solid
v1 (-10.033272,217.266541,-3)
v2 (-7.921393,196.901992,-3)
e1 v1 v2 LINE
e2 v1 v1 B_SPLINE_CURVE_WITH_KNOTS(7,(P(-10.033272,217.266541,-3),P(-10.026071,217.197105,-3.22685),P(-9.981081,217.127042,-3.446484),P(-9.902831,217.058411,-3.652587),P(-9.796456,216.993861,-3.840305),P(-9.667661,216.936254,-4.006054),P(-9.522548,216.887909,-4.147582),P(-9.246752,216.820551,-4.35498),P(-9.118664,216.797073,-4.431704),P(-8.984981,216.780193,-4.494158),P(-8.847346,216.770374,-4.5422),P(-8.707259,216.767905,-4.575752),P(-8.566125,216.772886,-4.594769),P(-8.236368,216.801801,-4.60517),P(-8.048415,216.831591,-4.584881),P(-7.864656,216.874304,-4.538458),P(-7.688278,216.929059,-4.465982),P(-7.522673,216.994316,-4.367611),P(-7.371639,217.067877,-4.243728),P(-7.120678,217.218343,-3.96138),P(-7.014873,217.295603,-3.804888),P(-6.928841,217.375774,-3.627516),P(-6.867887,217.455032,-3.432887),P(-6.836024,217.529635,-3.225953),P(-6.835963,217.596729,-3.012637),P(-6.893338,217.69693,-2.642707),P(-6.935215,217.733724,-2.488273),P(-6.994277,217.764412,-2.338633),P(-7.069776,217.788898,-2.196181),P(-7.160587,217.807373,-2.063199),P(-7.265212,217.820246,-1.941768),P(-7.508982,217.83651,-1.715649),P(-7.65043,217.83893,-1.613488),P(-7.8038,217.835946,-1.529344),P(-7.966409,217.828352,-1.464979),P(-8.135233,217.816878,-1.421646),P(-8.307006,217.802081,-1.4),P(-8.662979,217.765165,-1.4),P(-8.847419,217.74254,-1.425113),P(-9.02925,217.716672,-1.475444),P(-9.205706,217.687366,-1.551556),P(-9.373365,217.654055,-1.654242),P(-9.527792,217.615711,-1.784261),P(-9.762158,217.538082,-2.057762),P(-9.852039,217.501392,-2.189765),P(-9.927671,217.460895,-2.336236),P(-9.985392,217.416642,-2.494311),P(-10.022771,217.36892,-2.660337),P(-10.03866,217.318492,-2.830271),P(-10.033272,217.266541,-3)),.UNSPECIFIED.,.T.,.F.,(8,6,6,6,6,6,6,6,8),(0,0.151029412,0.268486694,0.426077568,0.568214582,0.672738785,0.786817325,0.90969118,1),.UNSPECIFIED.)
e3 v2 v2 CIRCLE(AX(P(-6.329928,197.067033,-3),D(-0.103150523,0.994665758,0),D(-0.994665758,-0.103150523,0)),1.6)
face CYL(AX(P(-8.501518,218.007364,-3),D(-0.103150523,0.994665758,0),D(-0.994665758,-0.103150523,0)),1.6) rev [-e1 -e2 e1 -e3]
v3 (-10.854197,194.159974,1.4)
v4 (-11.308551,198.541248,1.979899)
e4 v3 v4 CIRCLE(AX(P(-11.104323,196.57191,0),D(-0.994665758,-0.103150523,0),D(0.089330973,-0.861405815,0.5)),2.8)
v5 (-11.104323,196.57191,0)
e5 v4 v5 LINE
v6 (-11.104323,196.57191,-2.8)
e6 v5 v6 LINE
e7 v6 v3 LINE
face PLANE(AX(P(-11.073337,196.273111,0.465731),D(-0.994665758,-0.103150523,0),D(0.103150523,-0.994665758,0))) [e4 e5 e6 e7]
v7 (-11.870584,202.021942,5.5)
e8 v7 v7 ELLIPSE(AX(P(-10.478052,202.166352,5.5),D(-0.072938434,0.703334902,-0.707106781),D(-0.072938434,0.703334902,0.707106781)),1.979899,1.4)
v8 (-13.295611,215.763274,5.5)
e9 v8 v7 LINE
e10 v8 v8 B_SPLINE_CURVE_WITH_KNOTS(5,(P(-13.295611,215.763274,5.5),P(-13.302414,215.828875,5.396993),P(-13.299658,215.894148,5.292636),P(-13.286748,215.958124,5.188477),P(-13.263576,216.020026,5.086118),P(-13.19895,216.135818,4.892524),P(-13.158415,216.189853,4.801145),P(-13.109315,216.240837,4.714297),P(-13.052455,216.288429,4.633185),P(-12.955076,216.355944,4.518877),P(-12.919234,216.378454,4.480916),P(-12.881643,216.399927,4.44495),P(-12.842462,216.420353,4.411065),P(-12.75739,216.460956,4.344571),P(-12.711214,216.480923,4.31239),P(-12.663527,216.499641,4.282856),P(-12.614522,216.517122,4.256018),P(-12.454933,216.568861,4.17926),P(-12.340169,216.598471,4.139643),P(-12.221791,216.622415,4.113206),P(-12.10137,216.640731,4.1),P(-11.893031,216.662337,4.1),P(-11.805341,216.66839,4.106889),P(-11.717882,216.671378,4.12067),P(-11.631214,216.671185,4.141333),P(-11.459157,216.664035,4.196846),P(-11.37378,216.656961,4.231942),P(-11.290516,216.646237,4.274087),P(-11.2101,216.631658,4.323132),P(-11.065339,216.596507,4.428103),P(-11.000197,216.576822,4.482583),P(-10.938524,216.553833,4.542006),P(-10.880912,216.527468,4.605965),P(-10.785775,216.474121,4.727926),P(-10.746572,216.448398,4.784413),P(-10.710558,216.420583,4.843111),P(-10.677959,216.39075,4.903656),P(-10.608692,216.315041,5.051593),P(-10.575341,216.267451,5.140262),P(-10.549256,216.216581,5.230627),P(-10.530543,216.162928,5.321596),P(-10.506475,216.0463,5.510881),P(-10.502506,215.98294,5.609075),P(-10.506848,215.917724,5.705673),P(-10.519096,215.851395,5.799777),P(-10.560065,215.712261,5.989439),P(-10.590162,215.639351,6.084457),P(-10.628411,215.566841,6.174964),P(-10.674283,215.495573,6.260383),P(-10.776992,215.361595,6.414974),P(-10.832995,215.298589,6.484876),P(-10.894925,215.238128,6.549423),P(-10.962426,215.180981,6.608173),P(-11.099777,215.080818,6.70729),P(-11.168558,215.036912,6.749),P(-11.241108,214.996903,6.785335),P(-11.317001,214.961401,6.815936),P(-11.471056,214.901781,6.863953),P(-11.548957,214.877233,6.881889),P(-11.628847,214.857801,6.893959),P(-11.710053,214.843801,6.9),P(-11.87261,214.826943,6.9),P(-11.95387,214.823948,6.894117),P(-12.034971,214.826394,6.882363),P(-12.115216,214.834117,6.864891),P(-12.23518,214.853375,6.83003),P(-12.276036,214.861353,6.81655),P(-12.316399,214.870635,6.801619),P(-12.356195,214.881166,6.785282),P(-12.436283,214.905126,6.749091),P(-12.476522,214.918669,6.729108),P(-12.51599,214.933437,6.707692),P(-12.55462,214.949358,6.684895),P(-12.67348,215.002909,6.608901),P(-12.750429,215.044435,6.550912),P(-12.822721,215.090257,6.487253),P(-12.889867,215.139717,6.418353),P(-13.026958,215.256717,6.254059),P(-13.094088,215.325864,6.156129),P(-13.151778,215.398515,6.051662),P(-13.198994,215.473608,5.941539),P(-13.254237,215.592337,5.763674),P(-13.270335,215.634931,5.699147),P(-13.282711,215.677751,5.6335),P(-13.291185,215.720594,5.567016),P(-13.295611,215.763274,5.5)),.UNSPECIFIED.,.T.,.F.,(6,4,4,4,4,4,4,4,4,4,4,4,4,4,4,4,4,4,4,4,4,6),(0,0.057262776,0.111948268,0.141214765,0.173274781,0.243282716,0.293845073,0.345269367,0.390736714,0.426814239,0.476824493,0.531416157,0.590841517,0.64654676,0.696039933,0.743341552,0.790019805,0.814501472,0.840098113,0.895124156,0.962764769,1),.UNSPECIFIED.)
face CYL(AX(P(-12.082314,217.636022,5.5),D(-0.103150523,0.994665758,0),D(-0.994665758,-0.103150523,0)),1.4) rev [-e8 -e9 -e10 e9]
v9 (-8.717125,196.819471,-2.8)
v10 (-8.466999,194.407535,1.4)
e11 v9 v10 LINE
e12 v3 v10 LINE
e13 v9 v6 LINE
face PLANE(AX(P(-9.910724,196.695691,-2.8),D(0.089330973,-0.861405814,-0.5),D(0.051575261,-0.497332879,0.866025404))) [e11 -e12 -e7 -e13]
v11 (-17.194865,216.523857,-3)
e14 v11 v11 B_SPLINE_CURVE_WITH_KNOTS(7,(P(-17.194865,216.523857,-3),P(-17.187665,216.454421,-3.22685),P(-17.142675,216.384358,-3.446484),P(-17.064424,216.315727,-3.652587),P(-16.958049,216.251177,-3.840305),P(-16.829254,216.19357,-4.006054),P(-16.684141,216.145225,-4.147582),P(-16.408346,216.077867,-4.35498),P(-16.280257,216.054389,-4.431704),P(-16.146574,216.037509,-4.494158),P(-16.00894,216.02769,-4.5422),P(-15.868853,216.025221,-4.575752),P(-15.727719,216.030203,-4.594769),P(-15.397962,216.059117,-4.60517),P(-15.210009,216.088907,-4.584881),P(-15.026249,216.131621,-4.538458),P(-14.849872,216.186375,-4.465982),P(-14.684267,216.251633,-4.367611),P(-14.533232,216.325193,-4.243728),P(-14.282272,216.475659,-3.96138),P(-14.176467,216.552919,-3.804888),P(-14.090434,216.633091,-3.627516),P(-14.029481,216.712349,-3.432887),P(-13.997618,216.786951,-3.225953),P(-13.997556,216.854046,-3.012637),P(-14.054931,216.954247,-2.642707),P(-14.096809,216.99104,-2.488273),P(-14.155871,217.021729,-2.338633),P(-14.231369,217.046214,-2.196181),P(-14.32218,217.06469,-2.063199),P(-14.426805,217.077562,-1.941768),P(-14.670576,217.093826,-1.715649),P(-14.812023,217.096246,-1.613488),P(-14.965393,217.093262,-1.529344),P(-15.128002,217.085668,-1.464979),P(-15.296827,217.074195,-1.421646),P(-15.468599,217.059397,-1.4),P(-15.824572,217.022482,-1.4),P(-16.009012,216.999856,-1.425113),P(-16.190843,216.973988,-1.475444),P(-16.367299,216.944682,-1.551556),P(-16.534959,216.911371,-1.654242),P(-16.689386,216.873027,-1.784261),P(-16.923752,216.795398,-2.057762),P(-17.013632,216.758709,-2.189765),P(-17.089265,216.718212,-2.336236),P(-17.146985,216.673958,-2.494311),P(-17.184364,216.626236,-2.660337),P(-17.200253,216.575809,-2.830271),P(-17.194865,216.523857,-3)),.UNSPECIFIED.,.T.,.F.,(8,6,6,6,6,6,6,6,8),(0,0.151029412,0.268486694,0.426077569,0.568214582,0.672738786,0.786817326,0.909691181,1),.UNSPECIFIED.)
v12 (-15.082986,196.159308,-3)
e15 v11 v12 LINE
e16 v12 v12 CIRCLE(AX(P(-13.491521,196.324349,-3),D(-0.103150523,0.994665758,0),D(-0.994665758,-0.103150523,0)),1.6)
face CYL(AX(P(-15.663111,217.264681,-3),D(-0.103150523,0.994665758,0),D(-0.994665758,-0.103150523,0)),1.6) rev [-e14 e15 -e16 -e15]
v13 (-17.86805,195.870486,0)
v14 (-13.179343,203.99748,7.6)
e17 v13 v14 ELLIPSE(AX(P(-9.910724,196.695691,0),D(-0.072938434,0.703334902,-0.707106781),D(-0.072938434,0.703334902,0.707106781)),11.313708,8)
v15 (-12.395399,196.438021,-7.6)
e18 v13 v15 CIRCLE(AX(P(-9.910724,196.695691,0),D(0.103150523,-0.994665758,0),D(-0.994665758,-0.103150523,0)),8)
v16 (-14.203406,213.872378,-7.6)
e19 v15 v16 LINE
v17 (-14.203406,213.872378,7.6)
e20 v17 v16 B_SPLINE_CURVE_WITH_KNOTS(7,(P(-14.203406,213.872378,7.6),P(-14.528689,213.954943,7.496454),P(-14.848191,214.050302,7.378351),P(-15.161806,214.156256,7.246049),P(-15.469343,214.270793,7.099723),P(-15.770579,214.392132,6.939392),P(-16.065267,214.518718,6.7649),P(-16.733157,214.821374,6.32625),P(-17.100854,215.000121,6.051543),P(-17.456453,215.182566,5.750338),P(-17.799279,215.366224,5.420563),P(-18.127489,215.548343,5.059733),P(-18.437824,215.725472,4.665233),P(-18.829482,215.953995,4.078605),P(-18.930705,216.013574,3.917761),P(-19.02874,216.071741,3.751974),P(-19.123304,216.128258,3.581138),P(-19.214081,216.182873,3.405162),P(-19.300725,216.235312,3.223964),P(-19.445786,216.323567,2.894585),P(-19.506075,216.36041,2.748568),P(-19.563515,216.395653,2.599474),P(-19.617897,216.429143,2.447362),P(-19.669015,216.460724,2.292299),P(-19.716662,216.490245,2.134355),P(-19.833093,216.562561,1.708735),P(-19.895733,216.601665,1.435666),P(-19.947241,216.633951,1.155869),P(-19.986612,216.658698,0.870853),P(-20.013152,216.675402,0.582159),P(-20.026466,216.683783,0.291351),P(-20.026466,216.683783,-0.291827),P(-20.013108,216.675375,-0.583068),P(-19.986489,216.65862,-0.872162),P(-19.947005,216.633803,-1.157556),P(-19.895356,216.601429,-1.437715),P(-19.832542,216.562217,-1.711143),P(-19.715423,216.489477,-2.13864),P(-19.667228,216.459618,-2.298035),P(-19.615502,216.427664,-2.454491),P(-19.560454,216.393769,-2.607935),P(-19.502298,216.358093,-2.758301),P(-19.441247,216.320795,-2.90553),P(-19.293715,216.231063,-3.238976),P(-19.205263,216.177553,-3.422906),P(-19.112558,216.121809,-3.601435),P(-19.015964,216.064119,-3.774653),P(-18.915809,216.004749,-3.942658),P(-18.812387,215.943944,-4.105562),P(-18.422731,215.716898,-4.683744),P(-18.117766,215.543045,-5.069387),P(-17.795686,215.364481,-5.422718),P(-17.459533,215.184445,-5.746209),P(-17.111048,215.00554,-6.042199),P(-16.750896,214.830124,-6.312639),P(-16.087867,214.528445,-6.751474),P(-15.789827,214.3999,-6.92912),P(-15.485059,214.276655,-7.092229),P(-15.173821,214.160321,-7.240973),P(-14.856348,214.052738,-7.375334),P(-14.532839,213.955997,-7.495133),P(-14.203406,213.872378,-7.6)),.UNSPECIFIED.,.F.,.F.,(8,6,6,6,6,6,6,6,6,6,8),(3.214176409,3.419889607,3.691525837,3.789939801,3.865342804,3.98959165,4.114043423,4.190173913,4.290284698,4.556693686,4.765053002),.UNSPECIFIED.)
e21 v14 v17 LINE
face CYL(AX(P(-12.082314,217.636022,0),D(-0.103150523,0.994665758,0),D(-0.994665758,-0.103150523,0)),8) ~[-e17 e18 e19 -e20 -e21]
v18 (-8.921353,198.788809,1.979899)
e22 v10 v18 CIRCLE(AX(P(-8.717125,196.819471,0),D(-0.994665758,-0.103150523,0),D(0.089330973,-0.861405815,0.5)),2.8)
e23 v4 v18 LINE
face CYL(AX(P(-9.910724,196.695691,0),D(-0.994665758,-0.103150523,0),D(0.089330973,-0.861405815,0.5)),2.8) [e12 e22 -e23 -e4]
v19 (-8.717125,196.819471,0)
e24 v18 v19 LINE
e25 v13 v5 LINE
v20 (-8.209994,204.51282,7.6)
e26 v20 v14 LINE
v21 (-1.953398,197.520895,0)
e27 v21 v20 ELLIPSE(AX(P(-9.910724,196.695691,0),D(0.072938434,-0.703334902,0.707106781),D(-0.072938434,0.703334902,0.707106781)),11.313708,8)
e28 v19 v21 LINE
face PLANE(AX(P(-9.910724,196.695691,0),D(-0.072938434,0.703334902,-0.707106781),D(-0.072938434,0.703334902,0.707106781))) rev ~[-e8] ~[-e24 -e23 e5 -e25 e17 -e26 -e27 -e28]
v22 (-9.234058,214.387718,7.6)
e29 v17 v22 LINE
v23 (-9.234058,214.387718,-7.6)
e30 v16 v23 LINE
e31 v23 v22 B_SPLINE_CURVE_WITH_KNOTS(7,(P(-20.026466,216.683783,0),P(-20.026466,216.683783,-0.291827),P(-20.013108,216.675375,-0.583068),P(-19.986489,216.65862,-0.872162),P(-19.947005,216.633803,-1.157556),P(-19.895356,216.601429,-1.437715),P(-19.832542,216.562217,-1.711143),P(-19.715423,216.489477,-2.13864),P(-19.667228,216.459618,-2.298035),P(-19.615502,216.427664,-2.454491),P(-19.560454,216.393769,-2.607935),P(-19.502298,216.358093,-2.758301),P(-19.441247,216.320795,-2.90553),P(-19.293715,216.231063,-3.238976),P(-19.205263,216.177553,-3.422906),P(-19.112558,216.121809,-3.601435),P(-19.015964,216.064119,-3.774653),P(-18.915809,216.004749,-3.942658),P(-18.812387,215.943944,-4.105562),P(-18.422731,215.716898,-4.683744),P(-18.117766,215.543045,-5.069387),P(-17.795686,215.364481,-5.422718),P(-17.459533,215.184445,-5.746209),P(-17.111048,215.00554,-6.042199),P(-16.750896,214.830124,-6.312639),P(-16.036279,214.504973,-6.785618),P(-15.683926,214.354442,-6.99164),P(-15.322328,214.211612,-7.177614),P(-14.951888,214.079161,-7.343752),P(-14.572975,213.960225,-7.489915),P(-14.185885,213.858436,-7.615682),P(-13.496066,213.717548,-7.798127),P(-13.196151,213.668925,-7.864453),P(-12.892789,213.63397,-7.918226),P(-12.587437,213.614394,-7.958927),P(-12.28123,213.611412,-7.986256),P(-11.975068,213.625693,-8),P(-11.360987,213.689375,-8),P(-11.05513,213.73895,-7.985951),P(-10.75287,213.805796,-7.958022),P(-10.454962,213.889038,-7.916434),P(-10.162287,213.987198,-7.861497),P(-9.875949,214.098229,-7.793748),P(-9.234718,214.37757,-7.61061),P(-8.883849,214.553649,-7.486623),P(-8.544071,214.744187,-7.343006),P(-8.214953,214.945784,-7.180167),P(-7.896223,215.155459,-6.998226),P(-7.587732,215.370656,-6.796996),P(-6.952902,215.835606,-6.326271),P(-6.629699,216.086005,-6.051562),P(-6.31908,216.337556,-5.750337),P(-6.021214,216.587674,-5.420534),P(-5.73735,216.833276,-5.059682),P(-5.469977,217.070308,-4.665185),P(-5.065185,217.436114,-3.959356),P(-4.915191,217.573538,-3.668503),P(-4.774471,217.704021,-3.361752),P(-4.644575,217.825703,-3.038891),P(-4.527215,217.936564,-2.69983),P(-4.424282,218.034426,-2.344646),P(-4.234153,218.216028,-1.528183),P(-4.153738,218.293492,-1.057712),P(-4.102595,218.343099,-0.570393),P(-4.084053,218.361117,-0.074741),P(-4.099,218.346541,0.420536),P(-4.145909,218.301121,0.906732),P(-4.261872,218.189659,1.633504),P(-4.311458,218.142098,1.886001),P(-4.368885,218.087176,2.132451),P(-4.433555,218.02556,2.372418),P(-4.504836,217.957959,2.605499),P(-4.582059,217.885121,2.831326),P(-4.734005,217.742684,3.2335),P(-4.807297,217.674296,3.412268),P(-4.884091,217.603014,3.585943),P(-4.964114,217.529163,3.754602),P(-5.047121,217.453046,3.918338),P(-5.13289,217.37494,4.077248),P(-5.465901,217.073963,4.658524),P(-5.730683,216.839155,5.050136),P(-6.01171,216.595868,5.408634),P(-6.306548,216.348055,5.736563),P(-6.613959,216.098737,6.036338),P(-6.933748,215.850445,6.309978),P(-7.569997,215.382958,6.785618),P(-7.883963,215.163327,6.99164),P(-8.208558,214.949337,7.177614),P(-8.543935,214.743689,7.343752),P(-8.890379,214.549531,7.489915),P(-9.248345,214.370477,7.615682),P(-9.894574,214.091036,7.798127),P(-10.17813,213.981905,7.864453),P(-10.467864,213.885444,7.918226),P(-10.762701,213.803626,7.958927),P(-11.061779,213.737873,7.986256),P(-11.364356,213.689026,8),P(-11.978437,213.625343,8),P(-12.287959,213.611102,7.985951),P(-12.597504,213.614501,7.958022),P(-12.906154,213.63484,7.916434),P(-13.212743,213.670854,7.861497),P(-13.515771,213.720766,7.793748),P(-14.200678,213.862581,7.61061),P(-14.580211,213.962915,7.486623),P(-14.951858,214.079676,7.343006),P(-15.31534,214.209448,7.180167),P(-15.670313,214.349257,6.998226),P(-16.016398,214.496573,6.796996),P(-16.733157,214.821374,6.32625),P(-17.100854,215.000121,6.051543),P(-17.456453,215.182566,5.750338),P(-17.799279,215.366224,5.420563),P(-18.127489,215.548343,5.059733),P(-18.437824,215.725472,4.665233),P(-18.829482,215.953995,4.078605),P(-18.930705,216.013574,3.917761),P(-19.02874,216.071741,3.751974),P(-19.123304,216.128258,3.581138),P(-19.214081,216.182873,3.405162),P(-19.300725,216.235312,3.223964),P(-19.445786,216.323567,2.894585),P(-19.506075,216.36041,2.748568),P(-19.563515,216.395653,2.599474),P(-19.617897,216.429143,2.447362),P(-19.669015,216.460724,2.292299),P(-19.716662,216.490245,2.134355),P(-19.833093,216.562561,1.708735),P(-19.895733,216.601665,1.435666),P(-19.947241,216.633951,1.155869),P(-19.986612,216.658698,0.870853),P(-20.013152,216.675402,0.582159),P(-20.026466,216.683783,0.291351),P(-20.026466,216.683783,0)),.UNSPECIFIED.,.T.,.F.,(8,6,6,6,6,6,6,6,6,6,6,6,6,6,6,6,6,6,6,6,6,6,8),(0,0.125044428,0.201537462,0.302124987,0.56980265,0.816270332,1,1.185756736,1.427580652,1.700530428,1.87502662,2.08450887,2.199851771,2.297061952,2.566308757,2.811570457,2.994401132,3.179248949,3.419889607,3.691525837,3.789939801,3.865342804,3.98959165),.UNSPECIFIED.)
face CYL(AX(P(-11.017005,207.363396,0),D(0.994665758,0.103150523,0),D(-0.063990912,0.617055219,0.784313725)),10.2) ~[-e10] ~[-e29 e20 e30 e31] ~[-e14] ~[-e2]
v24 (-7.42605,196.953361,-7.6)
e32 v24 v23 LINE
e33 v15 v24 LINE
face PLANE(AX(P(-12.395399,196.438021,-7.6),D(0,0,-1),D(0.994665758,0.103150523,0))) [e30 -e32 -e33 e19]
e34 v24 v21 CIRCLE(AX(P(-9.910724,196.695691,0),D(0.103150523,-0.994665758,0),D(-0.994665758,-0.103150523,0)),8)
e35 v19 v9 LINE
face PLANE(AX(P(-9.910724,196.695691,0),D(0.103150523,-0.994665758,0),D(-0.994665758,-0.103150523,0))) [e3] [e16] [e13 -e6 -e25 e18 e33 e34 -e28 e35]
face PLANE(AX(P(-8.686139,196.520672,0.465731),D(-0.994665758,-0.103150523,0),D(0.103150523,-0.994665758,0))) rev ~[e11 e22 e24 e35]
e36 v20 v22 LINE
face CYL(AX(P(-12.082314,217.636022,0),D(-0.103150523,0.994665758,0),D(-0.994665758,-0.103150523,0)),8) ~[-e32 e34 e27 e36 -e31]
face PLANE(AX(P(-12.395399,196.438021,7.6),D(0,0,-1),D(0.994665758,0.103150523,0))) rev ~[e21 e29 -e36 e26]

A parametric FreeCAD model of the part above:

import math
import FreeCAD as App
import Part
import Sketcher
Q = App.Units.Quantity


def add_polygon(sketch, points):
    """Adds a closed chain of lines whose ends are joined by coincident constraints."""
    first, n = sketch.GeometryCount, len(points)
    for a, b in zip(points, points[1:] + points[:1]):
        sketch.addGeometry(Part.LineSegment(App.Vector(*a, 0), App.Vector(*b, 0)), False)
    for i in range(n):
        sketch.addConstraint(Sketcher.Constraint("Coincident", first + i, 2, first + (i + 1) % n, 1))

doc = App.newDocument("Part")
body = doc.addObject("PartDesign::Body", "Body")

# Sketch on an angled plane
sketch1 = body.newObject("Sketcher::SketchObject", "Sketch")
sketch1.Placement = App.Placement(App.Vector(-12.082314, 217.636022, 0), App.Rotation(App.Vector(-0.994665758, -0.103150523, 0), App.Vector(0, 0, -1.000000001), App.Vector(0.103150523, -0.994665758, 0), "ZXY"))
sketch1.addGeometry(Part.Circle(App.Vector(0, 0, 0), App.Vector(0, 0, 1), 8), False)
sketch1.addConstraint([
    Sketcher.Constraint("Coincident", 0, 3, -1, 1),
    Sketcher.Constraint("Diameter", 0, 16.0),
])
pad1 = body.newObject("PartDesign::Pad", "Pad")
pad1.Profile = sketch1
pad1.Length = 21.052632

# Sketch on an angled plane
sketch2 = body.newObject("Sketcher::SketchObject", "Sketch001")
sketch2.Placement = App.Placement(App.Vector(10.375762, 1.076005, 0), App.Rotation(App.Vector(0.103150523, -0.994665758, 0), App.Vector(0, 0, 1.000000001), App.Vector(-0.994665758, -0.103150523, 0), "ZXY"))
sketch2.addGeometry([
    Part.LineSegment(App.Vector(-213.721396, 8, 0), App.Vector(-217.721396, 8, 0)),
    Part.LineSegment(App.Vector(-217.721396, 8, 0), App.Vector(-217.721396, -8, 0)),
    Part.LineSegment(App.Vector(-217.721396, -8, 0), App.Vector(-213.721396, -8, 0)),
    Part.ArcOfCircle(Part.Circle(App.Vector(-207.393679, 0, 0), App.Vector(0, 0, 1), 10.2), math.radians(128.342749), math.radians(231.657251)),
], False)
sketch2.addConstraint([
    Sketcher.Constraint("Coincident", 0, 2, 1, 1),
    Sketcher.Constraint("Coincident", 1, 2, 2, 1),
    Sketcher.Constraint("Coincident", 2, 2, 3, 2),
    Sketcher.Constraint("Coincident", 3, 1, 0, 1),
    Sketcher.Constraint("Horizontal", 0),
    Sketcher.Constraint("Vertical", 1),
    Sketcher.Constraint("Horizontal", 2),
    Sketcher.Constraint("Symmetric", 2, 2, 3, 1, -1),
    Sketcher.Constraint("Radius", 3, 10.2),
    Sketcher.Constraint("DistanceX", 0, 2, 0, 1, 4.0),
    Sketcher.Constraint("DistanceY", 1, 2, 1, 1, 16.0),
    Sketcher.Constraint("DistanceX", 3, 3, -1, 1, 207.393679),
])
pocket1 = body.newObject("PartDesign::Pocket", "Pocket")
pocket1.Profile = sketch2
pocket1.Type = "ThroughAll"
pocket1.Midplane = True

# Sketch on an angled plane
sketch3 = body.newObject("Sketcher::SketchObject", "Sketch002")
sketch3.Placement = App.Placement(App.Vector(10.375762, 1.076005, 0), App.Rotation(App.Vector(0.103150523, -0.994665758, 0), App.Vector(0, 0, 1.000000001), App.Vector(-0.994665758, -0.103150523, 0), "ZXY"))
add_polygon(sketch3, [(-204.668765, 8), (-196.668765, 0), (-196.668765, 8)])  # lines 0-2
sketch3.addConstraint([
    Sketcher.Constraint("Vertical", 1),
    Sketcher.Constraint("Horizontal", 2),
    Sketcher.Constraint("PointOnObject", 0, 2, -1),
    Sketcher.Constraint("Equal", 2, 1),
    Sketcher.Constraint("DistanceX", 2, 2, 2, 1, 8.0),
    Sketcher.Constraint("DistanceX", 0, 2, -1, 1, 196.668765),
])
pocket2 = body.newObject("PartDesign::Pocket", "Pocket001")
pocket2.Profile = sketch3
pocket2.Type = "ThroughAll"
pocket2.Midplane = True

# Sketch on an angled plane
sketch4 = body.newObject("Sketcher::SketchObject", "Sketch003")
sketch4.Placement = App.Placement(App.Vector(10.375762, 1.076005, 0), App.Rotation(App.Vector(0.103150523, -0.994665758, 0), App.Vector(0, 0, 1.000000001), App.Vector(-0.994665758, -0.103150523, 0), "ZXY"))
sketch4.addGeometry([
    Part.LineSegment(App.Vector(-198.648664, 1.979899, 0), App.Vector(-196.668765, 0, 0)),
    Part.LineSegment(App.Vector(-196.668765, 0, 0), App.Vector(-196.668765, -2.8, 0)),
    Part.LineSegment(App.Vector(-196.668765, -2.8, 0), App.Vector(-194.243894, 1.4, 0)),
    Part.ArcOfCircle(Part.Circle(App.Vector(-196.668765, 0, 0), App.Vector(0, 0, 1), 2.8), math.radians(30), math.radians(135)),
], False)
sketch4.addConstraint([
    Sketcher.Constraint("Coincident", 0, 2, 1, 1),
    Sketcher.Constraint("Coincident", 1, 2, 2, 1),
    Sketcher.Constraint("Coincident", 2, 2, 3, 1),
    Sketcher.Constraint("Coincident", 3, 2, 0, 1),
    Sketcher.Constraint("Vertical", 1),
    Sketcher.Constraint("Coincident", 0, 2, 3, 3),
    Sketcher.Constraint("PointOnObject", 3, 3, -1),
    Sketcher.Constraint("Radius", 3, 2.8),
    Sketcher.Constraint("Angle", 0, Q("-45 deg")),
    Sketcher.Constraint("Angle", 2, Q("60 deg")),
    Sketcher.Constraint("DistanceY", 1, 2, 1, 1, 2.8),
    Sketcher.Constraint("DistanceX", 3, 3, -1, 1, 196.668765),
])
pad2 = body.newObject("PartDesign::Pad", "Pad001")
pad2.Profile = sketch4
pad2.Length = 2.4
pad2.Midplane = True

# Sketch on an angled plane
sketch5 = body.newObject("Sketcher::SketchObject", "Sketch004")
sketch5.Placement = App.Placement(App.Vector(-12.082314, 217.636022, 0), App.Rotation(App.Vector(-0.994665758, -0.103150523, 0), App.Vector(0, 0, -1.000000001), App.Vector(0.103150523, -0.994665758, 0), "ZXY"))
sketch5.addGeometry([
    Part.Circle(App.Vector(-3.6, 3, 0), App.Vector(0, 0, 1), 1.6),
    Part.Circle(App.Vector(3.6, 3, 0), App.Vector(0, 0, 1), 1.6),
    Part.Circle(App.Vector(0, -5.5, 0), App.Vector(0, 0, 1), 1.4),
], False)
sketch5.addConstraint([
    Sketcher.Constraint("Equal", 0, 1),
    Sketcher.Constraint("Symmetric", 0, 3, 1, 3, -2),
    Sketcher.Constraint("PointOnObject", 2, 3, -2),
    Sketcher.Constraint("Diameter", 0, 3.2),
    Sketcher.Constraint("Diameter", 2, 2.8),
    Sketcher.Constraint("DistanceY", -1, 1, 0, 3, 3.0),
    Sketcher.Constraint("DistanceX", 0, 3, -1, 1, 3.6),
    Sketcher.Constraint("DistanceY", 2, 3, -1, 1, 5.5),
])
pocket3 = body.newObject("PartDesign::Pocket", "Pocket002")
pocket3.Profile = sketch5
pocket3.Type = "ThroughAll"
pocket3.Midplane = True

# Sketch on an angled plane
sketch6 = body.newObject("Sketcher::SketchObject", "Sketch005")
sketch6.Placement = App.Placement(App.Vector(-20.286486, 195.619686, 0), App.Rotation(App.Vector(0.994665758, 0.103150523, 0), App.Vector(0, 0, 1.000000001), App.Vector(0.103150523, -0.994665758, 0), "ZXY"))
sketch6.addGeometry([
    Part.LineSegment(App.Vector(12.929404, -7.6, 0), App.Vector(7.933406, -7.6, 0)),
    Part.ArcOfCircle(Part.Circle(App.Vector(10.431405, 0, 0), App.Vector(0, 0, 1), 8), math.radians(-108.194872), math.radians(-71.805128)),
    Part.LineSegment(App.Vector(7.933406, 7.6, 0), App.Vector(12.929404, 7.6, 0)),
    Part.ArcOfCircle(Part.Circle(App.Vector(10.431405, 0, 0), App.Vector(0, 0, 1), 8), math.radians(71.805128), math.radians(108.194872)),
], False)
sketch6.addConstraint([
    Sketcher.Constraint("Coincident", 0, 1, 1, 2),
    Sketcher.Constraint("Coincident", 1, 1, 0, 2),
    Sketcher.Constraint("Coincident", 2, 1, 3, 2),
    Sketcher.Constraint("Coincident", 3, 1, 2, 2),
    Sketcher.Constraint("Horizontal", 0),
    Sketcher.Constraint("Horizontal", 2),
    Sketcher.Constraint("Coincident", 3, 3, 1, 3),
    Sketcher.Constraint("Equal", 1, 3),
    Sketcher.Constraint("Symmetric", 1, 1, 2, 1, -1),
    Sketcher.Constraint("Radius", 1, 8.0),
    Sketcher.Constraint("DistanceY", 0, 1, -1, 1, 7.6),
    Sketcher.Constraint("DistanceX", -1, 1, 1, 3, 10.431405),
])
pocket4 = body.newObject("PartDesign::Pocket", "Pocket003")
pocket4.Profile = sketch6
pocket4.Type = "ThroughAll"

doc.recompute()
